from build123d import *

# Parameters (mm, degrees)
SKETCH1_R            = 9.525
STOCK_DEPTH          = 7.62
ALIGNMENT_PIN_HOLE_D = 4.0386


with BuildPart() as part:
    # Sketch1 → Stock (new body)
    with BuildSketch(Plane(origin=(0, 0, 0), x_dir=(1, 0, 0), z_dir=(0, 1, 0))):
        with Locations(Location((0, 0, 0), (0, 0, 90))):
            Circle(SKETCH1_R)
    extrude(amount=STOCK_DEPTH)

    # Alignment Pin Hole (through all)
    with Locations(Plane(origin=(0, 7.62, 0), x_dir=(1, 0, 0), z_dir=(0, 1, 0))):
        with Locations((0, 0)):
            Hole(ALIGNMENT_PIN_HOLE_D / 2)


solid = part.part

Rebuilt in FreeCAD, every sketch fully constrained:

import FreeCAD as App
import Part
import Sketcher
Q = App.Units.Quantity

doc = App.newDocument("Part")
params = doc.addObject("Spreadsheet::Sheet", "Params")
for row, (alias, value) in enumerate([
    ("sketch1_diameter", "0.75 in"),
    ("pad1_length", "0.3 in"),
    ("sketch2_diameter", "0.159 in"),
    ("hole_diameter", "0.159 in"),
], start=1):
    params.set(f"A{row}", alias)
    params.set(f"B{row}", "=" + value)
    params.setAlias(f"B{row}", alias)

body = doc.addObject("PartDesign::Body", "Body")

sketch1 = body.newObject("Sketcher::SketchObject", "Sketch")
sketch1.AttachmentSupport = (doc.getObject("XZ_Plane"), [""])
sketch1.MapMode = "FlatFace"
sketch1.addGeometry(Part.Circle(App.Vector(0, 0, 0), App.Vector(0, 0, 1), 10), False)
sketch1.addConstraint([
    Sketcher.Constraint("Coincident", 0, 3, -1, 1),
    Sketcher.Constraint("Diameter", 0, Q("0.75 in")),
])
sketch1.setExpression("Constraints[1]", "Params.sketch1_diameter")
pad1 = body.newObject("PartDesign::Pad", "Pad")
pad1.Profile = sketch1
pad1.setExpression("Length", "Params.pad1_length")
pad1.Reversed = True

sketch2 = body.newObject("Sketcher::SketchObject", "Sketch001")
sketch2.AttachmentSupport = (doc.getObject("XZ_Plane"), [""])
sketch2.MapMode = "FlatFace"
sketch2.AttachmentOffset = App.Placement(App.Vector(0, 0, -0.3 * 25.4), App.Rotation())
sketch2.addGeometry(Part.Circle(App.Vector(0, 0, 0), App.Vector(0, 0, 1), 2), False)
sketch2.addConstraint([
    Sketcher.Constraint("Coincident", 0, 3, -1, 1),
    Sketcher.Constraint("Diameter", 0, Q("0.159 in")),
])
sketch2.setExpression("Constraints[1]", "Params.sketch2_diameter")
doc.recompute()
hole = body.newObject("PartDesign::Hole", "Hole")
hole.Profile = sketch2
hole.ThreadType = "None"
hole.setExpression("Diameter", "Params.hole_diameter")
hole.DepthType = "ThroughAll"
hole.Reversed = True

doc.recompute()
